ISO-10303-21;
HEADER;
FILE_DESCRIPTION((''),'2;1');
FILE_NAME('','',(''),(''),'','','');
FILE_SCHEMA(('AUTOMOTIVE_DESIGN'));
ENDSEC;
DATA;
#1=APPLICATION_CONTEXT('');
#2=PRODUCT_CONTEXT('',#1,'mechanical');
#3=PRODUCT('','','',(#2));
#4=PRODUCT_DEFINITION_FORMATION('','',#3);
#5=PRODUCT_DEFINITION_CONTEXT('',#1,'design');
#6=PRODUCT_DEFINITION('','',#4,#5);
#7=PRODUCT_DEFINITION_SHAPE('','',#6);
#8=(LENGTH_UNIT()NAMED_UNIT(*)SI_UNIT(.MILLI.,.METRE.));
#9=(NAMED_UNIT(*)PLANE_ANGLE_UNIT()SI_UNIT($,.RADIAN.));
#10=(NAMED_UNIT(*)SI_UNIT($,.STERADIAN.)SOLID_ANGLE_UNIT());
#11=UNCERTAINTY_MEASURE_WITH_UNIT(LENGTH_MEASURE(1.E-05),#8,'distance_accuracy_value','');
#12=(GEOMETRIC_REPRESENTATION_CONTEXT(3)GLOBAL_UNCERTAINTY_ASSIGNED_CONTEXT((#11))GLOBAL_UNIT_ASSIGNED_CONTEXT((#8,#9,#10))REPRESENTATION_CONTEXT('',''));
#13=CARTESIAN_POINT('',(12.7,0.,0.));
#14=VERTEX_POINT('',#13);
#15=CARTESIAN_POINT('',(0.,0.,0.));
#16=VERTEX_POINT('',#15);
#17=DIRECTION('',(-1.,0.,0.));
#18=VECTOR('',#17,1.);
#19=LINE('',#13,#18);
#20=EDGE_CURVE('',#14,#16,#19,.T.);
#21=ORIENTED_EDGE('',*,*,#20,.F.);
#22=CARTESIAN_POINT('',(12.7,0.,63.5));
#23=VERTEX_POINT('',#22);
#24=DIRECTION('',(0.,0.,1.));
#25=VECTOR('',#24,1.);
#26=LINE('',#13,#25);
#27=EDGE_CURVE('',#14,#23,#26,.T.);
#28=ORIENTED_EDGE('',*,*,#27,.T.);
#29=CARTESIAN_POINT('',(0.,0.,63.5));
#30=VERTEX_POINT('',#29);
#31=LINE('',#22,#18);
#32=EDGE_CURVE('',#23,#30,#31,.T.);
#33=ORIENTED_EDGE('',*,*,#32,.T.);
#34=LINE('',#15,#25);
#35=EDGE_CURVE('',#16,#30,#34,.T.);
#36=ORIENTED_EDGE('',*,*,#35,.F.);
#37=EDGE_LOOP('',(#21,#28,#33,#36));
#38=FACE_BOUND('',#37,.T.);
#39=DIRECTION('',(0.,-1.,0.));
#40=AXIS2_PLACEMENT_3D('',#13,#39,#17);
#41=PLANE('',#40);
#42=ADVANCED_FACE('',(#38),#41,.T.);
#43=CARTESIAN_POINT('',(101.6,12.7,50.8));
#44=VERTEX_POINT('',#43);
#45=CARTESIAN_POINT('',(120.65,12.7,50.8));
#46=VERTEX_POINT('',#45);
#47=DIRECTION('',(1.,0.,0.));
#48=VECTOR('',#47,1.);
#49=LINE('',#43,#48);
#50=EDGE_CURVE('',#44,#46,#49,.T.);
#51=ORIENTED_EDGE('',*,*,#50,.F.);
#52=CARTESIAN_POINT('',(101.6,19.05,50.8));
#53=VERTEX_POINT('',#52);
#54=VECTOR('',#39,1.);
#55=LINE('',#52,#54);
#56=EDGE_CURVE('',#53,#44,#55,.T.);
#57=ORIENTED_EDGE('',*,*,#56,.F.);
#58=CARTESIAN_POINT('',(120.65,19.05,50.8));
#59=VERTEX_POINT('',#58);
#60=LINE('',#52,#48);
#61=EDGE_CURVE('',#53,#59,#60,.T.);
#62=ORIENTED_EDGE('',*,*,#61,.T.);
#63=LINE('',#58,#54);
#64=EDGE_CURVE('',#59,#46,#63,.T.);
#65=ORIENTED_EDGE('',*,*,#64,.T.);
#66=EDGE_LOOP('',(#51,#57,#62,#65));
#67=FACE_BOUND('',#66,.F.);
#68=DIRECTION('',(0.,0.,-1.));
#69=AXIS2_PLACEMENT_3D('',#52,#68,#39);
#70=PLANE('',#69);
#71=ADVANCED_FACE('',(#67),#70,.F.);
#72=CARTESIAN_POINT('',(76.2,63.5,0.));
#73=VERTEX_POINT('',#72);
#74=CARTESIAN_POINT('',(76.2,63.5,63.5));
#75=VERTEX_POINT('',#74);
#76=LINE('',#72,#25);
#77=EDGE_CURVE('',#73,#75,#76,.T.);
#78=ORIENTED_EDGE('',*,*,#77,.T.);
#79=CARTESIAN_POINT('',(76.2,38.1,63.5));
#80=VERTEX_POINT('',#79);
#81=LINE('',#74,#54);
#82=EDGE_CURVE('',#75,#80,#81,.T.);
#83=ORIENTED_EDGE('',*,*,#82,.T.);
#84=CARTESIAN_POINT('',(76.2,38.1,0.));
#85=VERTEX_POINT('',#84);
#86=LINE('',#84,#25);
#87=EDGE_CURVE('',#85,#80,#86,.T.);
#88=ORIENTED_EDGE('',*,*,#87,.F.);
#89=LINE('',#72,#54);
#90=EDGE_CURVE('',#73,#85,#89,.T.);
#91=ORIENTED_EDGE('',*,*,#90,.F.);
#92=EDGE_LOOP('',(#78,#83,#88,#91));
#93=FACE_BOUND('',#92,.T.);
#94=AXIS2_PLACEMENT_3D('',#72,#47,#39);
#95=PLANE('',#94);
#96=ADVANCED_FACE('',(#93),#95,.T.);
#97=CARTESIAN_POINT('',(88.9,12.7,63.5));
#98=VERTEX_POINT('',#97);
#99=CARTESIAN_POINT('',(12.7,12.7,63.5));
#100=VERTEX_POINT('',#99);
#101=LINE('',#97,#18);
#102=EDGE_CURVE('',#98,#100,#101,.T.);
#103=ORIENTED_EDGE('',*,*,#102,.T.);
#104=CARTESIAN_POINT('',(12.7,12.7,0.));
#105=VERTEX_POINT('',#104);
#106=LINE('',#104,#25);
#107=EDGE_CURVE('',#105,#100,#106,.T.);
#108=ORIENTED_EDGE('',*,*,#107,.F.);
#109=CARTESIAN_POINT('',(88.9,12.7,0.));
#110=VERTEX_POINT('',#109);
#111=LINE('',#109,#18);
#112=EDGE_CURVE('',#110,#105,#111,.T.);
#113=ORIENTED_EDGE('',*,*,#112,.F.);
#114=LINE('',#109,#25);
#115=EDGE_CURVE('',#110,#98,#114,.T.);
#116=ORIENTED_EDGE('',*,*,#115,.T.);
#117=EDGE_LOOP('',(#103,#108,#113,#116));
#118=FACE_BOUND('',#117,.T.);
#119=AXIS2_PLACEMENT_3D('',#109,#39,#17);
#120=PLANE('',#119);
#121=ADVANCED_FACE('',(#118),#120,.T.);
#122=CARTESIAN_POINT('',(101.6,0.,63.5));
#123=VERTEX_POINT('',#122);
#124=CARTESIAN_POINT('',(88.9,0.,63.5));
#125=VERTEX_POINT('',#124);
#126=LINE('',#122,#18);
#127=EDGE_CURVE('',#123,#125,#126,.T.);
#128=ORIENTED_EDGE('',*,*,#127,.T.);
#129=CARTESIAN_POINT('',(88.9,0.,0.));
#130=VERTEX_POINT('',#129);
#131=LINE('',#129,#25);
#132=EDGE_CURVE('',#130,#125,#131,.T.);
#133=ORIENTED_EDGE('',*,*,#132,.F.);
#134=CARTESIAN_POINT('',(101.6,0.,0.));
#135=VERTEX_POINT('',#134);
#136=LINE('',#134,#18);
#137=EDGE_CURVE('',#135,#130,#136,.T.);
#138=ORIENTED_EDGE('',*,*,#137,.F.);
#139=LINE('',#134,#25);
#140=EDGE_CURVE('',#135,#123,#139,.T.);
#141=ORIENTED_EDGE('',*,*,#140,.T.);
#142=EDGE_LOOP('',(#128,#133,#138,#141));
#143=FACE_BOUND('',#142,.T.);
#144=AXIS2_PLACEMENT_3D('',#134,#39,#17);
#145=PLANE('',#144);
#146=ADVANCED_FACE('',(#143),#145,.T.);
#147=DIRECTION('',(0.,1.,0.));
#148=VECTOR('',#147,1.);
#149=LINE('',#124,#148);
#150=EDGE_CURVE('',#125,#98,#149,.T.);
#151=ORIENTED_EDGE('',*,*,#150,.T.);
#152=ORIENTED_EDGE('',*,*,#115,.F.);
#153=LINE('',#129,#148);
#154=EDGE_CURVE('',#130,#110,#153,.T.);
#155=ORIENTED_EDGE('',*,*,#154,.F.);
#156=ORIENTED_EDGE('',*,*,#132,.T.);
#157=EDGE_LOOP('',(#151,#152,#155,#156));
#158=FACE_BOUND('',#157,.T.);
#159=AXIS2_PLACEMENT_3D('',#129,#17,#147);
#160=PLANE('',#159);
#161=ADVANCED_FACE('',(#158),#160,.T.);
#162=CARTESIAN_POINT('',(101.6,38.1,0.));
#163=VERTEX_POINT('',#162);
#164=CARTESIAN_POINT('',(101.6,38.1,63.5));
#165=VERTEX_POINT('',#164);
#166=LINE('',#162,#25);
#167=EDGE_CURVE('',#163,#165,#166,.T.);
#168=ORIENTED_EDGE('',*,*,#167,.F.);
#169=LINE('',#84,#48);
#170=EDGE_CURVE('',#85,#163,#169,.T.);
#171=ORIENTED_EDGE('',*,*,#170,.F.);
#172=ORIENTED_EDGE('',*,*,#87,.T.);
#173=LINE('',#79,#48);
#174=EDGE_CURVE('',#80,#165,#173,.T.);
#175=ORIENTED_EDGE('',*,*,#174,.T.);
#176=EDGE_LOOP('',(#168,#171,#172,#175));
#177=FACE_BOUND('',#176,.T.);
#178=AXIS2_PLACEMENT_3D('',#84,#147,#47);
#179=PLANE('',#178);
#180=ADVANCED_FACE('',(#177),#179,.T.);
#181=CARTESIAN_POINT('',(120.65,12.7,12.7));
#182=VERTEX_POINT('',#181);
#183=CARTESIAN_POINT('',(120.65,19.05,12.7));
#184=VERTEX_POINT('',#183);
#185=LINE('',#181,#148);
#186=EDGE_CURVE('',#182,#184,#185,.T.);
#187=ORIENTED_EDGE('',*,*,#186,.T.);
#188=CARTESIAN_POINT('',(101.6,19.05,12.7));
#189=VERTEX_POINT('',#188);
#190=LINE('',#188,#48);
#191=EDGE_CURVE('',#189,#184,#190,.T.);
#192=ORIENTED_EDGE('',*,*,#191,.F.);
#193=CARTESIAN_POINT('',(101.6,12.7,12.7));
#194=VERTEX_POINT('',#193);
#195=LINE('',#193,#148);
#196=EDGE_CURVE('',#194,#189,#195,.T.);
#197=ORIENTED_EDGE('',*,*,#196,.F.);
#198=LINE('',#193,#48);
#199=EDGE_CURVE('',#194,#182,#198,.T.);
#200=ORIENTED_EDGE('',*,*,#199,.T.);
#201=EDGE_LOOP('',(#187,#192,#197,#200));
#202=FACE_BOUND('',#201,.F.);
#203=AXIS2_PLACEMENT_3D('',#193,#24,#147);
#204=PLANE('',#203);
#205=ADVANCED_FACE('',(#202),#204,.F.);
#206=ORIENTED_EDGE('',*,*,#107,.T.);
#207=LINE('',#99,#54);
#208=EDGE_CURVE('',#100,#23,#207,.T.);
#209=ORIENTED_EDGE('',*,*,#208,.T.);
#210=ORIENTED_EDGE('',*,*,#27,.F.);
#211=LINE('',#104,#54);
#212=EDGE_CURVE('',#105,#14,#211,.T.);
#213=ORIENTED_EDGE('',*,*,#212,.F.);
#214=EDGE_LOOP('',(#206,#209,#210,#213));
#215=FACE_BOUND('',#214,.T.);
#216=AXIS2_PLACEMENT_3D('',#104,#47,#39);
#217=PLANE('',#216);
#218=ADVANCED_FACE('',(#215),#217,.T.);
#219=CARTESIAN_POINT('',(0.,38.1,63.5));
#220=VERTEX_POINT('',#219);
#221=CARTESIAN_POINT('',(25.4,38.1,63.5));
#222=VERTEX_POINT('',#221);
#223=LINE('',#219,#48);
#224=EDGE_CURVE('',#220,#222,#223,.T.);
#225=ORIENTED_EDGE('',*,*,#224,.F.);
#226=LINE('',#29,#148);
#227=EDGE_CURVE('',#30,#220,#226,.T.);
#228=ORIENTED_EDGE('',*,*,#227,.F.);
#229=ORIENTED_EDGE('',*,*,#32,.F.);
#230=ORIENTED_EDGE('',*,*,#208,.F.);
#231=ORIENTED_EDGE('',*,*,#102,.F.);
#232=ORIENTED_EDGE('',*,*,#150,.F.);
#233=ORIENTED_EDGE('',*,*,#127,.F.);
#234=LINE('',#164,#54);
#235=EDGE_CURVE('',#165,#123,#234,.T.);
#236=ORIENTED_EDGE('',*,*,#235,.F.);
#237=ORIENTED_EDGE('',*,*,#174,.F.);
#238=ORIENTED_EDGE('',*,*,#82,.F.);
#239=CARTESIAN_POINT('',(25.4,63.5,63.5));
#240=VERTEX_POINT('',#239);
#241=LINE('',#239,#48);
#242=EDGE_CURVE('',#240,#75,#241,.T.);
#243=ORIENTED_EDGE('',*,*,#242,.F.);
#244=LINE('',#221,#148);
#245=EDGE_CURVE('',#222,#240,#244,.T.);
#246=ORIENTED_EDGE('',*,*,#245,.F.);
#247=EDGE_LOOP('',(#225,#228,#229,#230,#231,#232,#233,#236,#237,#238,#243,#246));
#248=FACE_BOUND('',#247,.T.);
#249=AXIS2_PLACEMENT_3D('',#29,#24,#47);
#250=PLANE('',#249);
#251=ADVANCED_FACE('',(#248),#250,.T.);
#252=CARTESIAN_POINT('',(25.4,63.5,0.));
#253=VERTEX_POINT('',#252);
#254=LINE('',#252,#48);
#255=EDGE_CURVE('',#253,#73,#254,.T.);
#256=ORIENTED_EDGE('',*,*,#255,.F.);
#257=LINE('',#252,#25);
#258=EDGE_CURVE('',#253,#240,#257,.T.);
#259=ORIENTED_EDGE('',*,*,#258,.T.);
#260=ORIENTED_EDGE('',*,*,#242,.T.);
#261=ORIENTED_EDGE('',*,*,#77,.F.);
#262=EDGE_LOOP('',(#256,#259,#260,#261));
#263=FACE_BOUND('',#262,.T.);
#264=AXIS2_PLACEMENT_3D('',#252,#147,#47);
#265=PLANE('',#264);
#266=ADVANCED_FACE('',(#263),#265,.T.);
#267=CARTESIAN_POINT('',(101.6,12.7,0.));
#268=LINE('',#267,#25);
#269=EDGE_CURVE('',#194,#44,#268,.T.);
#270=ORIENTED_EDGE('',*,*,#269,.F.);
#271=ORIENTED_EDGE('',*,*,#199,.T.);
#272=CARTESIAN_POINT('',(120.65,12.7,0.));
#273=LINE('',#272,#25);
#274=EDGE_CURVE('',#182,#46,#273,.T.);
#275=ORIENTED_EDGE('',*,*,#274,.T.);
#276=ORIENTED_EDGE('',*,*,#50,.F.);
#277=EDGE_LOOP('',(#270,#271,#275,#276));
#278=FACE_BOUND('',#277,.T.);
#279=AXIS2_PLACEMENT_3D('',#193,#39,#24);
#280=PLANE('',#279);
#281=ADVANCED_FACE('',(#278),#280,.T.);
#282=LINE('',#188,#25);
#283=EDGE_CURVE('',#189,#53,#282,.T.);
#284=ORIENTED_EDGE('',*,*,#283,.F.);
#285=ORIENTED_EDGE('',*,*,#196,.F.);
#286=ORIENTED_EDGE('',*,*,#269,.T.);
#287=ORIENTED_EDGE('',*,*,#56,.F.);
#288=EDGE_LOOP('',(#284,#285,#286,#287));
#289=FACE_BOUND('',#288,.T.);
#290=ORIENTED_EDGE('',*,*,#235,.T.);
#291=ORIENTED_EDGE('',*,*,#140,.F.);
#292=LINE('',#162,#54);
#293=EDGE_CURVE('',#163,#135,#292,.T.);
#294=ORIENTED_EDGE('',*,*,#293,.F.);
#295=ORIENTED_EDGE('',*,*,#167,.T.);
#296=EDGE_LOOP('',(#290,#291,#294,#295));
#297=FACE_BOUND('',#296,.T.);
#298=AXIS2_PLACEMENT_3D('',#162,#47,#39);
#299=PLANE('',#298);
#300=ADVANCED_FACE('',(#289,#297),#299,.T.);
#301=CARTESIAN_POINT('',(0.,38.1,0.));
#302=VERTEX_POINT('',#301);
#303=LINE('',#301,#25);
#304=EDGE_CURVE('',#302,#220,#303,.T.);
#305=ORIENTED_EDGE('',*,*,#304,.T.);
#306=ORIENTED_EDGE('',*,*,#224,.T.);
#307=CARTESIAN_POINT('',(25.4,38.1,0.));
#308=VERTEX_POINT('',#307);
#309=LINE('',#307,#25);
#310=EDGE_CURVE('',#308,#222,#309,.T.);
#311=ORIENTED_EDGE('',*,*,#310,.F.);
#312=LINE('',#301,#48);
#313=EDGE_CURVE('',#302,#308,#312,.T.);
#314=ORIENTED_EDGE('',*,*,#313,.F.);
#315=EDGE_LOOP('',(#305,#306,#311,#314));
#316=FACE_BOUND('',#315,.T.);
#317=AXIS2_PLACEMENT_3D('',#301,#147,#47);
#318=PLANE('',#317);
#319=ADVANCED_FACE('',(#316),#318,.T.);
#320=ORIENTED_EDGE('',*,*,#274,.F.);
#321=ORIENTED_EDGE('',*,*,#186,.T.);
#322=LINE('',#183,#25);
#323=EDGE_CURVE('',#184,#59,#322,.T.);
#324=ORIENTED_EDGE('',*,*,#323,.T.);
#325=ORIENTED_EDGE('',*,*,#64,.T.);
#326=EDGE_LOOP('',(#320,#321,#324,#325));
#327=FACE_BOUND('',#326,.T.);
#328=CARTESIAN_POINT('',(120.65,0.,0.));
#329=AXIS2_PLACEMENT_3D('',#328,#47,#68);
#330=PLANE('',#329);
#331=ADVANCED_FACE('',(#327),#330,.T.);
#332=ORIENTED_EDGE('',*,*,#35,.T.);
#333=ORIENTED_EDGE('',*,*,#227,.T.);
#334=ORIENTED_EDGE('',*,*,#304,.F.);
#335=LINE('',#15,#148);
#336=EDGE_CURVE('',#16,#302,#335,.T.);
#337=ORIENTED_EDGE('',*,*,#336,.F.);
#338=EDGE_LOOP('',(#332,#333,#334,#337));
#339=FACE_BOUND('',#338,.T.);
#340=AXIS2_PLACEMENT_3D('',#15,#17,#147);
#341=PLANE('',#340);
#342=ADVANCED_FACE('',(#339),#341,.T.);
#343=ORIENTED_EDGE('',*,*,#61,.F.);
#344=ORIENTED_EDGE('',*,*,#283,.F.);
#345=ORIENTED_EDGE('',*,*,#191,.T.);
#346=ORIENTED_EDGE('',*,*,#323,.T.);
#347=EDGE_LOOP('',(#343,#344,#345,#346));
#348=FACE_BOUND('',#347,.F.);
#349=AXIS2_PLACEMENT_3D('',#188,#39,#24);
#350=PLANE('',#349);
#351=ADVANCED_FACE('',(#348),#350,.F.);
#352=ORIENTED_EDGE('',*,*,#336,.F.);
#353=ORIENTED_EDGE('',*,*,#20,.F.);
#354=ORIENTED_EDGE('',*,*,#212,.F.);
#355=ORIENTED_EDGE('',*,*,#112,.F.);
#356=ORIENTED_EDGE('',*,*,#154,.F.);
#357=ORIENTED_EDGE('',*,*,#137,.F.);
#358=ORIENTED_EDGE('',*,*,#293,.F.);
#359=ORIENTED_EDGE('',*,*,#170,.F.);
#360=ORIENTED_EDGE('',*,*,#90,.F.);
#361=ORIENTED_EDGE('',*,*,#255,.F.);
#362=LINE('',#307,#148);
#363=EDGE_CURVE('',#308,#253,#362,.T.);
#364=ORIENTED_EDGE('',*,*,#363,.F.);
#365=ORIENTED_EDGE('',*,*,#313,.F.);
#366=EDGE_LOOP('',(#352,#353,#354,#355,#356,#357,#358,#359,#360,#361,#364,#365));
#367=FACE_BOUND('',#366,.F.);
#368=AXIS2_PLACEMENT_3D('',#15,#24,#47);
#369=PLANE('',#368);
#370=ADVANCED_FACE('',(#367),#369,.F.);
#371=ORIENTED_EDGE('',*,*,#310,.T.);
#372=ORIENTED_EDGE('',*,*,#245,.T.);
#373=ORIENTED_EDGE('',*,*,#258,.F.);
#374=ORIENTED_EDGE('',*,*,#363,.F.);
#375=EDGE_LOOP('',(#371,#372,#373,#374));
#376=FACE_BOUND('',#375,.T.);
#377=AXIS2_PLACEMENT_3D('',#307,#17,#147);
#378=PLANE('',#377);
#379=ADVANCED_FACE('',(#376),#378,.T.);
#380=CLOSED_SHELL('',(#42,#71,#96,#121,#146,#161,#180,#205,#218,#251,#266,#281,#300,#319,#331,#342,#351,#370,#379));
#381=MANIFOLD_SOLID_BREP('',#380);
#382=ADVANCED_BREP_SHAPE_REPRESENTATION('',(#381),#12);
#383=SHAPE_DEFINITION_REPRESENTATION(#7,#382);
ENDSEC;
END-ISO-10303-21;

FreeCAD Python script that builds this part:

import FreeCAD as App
import Part
import Sketcher

V = App.Vector
Q = App.Units.Quantity

doc = App.newDocument("Part")
params = doc.addObject("Spreadsheet::Sheet", "Params")
for row, (alias, value) in enumerate([
    ("sketch1_width", "3 in"),
    ("sketch1_width2", "1 in"),
    ("sketch1_width3", "2 in"),
    ("sketch1_height", "1.5 in"),
    ("pad1_length", "2.5 in"),
    ("sketch2_height", "1.5 in"),
    ("sketch2_width", "0.25 in"),
    ("pad2_length", "0.75 in"),
], start=1):
    params.set(f"A{row}", alias)
    params.set(f"B{row}", "=" + value)
    params.setAlias(f"B{row}", alias)

body = doc.addObject("PartDesign::Body", "Body")

# Sketch on XY plane
sketch1 = doc.addObject("Sketcher::SketchObject", "Sketch")
body.addObject(sketch1)
sketch1.AttachmentSupport = (doc.XY_Plane, [""])
sketch1.MapMode = "FlatFace"
sketch1.addGeometry([
    Part.LineSegment(V(0, 38.1, 0), V(0, 0, 0)),  # 0
    Part.LineSegment(V(0, 0, 0), V(12.7, 0, 0)),  # 1
    Part.LineSegment(V(12.7, 0, 0), V(12.7, 12.7, 0)),  # 2
    Part.LineSegment(V(12.7, 12.7, 0), V(88.9, 12.7, 0)),  # 3
    Part.LineSegment(V(88.9, 12.7, 0), V(88.9, 0, 0)),  # 4
    Part.LineSegment(V(88.9, 0, 0), V(101.6, 0, 0)),  # 5
    Part.LineSegment(V(101.6, 0, 0), V(101.6, 38.1, 0)),  # 6
    Part.LineSegment(V(101.6, 38.1, 0), V(76.2, 38.1, 0)),  # 7
    Part.LineSegment(V(76.2, 38.1, 0), V(76.2, 63.5, 0)),  # 8
    Part.LineSegment(V(76.2, 63.5, 0), V(25.4, 63.5, 0)),  # 9
    Part.LineSegment(V(25.4, 63.5, 0), V(25.4, 38.1, 0)),  # 10
    Part.LineSegment(V(25.4, 38.1, 0), V(0, 38.1, 0)),  # 11
], False)
sketch1.addConstraint([
    Sketcher.Constraint("Coincident", 0, 2, 1, 1),
    Sketcher.Constraint("Coincident", 1, 2, 2, 1),
    Sketcher.Constraint("Coincident", 2, 2, 3, 1),
    Sketcher.Constraint("Coincident", 3, 2, 4, 1),
    Sketcher.Constraint("Coincident", 4, 2, 5, 1),
    Sketcher.Constraint("Coincident", 5, 2, 6, 1),
    Sketcher.Constraint("Coincident", 6, 2, 7, 1),
    Sketcher.Constraint("Coincident", 7, 2, 8, 1),
    Sketcher.Constraint("Coincident", 8, 2, 9, 1),
    Sketcher.Constraint("Coincident", 9, 2, 10, 1),
    Sketcher.Constraint("Coincident", 10, 2, 11, 1),
    Sketcher.Constraint("Coincident", 11, 2, 0, 1),
    Sketcher.Constraint("Vertical", 0),
    Sketcher.Constraint("Horizontal", 1),
    Sketcher.Constraint("Vertical", 2),
    Sketcher.Constraint("Horizontal", 3),
    Sketcher.Constraint("Vertical", 4),
    Sketcher.Constraint("Horizontal", 5),
    Sketcher.Constraint("Vertical", 6),
    Sketcher.Constraint("Horizontal", 7),
    Sketcher.Constraint("Vertical", 8),
    Sketcher.Constraint("Horizontal", 9),
    Sketcher.Constraint("Vertical", 10),
    Sketcher.Constraint("Horizontal", 11),
    Sketcher.Constraint("Coincident", 0, 2, -1, 1),
    Sketcher.Constraint("PointOnObject", 4, 2, -1),
    Sketcher.Constraint("Horizontal", 7, 2, 10, 2),
    Sketcher.Constraint("Equal", 1, 5),
    Sketcher.Constraint("Equal", 7, 11),
    Sketcher.Constraint("Equal", 5, 2),
    Sketcher.Constraint("Equal", 11, 8),
    Sketcher.Constraint("DistanceX", 3, 1, 3, 2, Q("3 in")),
    Sketcher.Constraint("DistanceX", 7, 2, 7, 1, Q("1 in")),
    Sketcher.Constraint("DistanceX", 9, 2, 9, 1, Q("2 in")),
    Sketcher.Constraint("DistanceY", 0, 2, 0, 1, Q("1.5 in")),
])
sketch1.setExpression("Constraints[31]", "Params.sketch1_width")
sketch1.setExpression("Constraints[32]", "Params.sketch1_width2")
sketch1.setExpression("Constraints[33]", "Params.sketch1_width3")
sketch1.setExpression("Constraints[34]", "Params.sketch1_height")
pad1 = doc.addObject("PartDesign::Pad", "Pad")
body.addObject(pad1)
pad1.Profile = sketch1
pad1.setExpression("Length", "Params.pad1_length")

# Sketch on YZ plane
sketch2 = doc.addObject("Sketcher::SketchObject", "Sketch001")
body.addObject(sketch2)
sketch2.AttachmentSupport = (doc.YZ_Plane, [""])
sketch2.MapMode = "FlatFace"
sketch2.AttachmentOffset = App.Placement(V(0, 0, 4 * 25.4), App.Rotation())
sketch2.addGeometry([
    Part.LineSegment(V(19.05, 12.7, 0), V(19.05, 50.8, 0)),
    Part.LineSegment(V(19.05, 50.8, 0), V(12.7, 50.8, 0)),
    Part.LineSegment(V(12.7, 50.8, 0), V(12.7, 12.7, 0)),
    Part.LineSegment(V(12.7, 12.7, 0), V(19.05, 12.7, 0)),
], False)
sketch2.addConstraint([
    Sketcher.Constraint("Coincident", 0, 2, 1, 1),
    Sketcher.Constraint("Coincident", 1, 2, 2, 1),
    Sketcher.Constraint("Coincident", 2, 2, 3, 1),
    Sketcher.Constraint("Coincident", 3, 2, 0, 1),
    Sketcher.Constraint("Vertical", 0),
    Sketcher.Constraint("Horizontal", 1),
    Sketcher.Constraint("Vertical", 2),
    Sketcher.Constraint("Horizontal", 3),
    Sketcher.Constraint("DistanceY", 0, 1, 0, 2, Q("1.5 in")),
    Sketcher.Constraint("DistanceX", 1, 2, 1, 1, Q("0.25 in")),
    Sketcher.Constraint("DistanceY", -1, 1, 0, 2, Q("2 in")),
    Sketcher.Constraint("DistanceX", -1, 1, 1, 2, Q("0.5 in")),
])
sketch2.setExpression("Constraints[8]", "Params.sketch2_height")
sketch2.setExpression("Constraints[9]", "Params.sketch2_width")
pad2 = doc.addObject("PartDesign::Pad", "Pad001")
body.addObject(pad2)
pad2.Profile = sketch2
pad2.setExpression("Length", "Params.pad2_length")

doc.recompute()
